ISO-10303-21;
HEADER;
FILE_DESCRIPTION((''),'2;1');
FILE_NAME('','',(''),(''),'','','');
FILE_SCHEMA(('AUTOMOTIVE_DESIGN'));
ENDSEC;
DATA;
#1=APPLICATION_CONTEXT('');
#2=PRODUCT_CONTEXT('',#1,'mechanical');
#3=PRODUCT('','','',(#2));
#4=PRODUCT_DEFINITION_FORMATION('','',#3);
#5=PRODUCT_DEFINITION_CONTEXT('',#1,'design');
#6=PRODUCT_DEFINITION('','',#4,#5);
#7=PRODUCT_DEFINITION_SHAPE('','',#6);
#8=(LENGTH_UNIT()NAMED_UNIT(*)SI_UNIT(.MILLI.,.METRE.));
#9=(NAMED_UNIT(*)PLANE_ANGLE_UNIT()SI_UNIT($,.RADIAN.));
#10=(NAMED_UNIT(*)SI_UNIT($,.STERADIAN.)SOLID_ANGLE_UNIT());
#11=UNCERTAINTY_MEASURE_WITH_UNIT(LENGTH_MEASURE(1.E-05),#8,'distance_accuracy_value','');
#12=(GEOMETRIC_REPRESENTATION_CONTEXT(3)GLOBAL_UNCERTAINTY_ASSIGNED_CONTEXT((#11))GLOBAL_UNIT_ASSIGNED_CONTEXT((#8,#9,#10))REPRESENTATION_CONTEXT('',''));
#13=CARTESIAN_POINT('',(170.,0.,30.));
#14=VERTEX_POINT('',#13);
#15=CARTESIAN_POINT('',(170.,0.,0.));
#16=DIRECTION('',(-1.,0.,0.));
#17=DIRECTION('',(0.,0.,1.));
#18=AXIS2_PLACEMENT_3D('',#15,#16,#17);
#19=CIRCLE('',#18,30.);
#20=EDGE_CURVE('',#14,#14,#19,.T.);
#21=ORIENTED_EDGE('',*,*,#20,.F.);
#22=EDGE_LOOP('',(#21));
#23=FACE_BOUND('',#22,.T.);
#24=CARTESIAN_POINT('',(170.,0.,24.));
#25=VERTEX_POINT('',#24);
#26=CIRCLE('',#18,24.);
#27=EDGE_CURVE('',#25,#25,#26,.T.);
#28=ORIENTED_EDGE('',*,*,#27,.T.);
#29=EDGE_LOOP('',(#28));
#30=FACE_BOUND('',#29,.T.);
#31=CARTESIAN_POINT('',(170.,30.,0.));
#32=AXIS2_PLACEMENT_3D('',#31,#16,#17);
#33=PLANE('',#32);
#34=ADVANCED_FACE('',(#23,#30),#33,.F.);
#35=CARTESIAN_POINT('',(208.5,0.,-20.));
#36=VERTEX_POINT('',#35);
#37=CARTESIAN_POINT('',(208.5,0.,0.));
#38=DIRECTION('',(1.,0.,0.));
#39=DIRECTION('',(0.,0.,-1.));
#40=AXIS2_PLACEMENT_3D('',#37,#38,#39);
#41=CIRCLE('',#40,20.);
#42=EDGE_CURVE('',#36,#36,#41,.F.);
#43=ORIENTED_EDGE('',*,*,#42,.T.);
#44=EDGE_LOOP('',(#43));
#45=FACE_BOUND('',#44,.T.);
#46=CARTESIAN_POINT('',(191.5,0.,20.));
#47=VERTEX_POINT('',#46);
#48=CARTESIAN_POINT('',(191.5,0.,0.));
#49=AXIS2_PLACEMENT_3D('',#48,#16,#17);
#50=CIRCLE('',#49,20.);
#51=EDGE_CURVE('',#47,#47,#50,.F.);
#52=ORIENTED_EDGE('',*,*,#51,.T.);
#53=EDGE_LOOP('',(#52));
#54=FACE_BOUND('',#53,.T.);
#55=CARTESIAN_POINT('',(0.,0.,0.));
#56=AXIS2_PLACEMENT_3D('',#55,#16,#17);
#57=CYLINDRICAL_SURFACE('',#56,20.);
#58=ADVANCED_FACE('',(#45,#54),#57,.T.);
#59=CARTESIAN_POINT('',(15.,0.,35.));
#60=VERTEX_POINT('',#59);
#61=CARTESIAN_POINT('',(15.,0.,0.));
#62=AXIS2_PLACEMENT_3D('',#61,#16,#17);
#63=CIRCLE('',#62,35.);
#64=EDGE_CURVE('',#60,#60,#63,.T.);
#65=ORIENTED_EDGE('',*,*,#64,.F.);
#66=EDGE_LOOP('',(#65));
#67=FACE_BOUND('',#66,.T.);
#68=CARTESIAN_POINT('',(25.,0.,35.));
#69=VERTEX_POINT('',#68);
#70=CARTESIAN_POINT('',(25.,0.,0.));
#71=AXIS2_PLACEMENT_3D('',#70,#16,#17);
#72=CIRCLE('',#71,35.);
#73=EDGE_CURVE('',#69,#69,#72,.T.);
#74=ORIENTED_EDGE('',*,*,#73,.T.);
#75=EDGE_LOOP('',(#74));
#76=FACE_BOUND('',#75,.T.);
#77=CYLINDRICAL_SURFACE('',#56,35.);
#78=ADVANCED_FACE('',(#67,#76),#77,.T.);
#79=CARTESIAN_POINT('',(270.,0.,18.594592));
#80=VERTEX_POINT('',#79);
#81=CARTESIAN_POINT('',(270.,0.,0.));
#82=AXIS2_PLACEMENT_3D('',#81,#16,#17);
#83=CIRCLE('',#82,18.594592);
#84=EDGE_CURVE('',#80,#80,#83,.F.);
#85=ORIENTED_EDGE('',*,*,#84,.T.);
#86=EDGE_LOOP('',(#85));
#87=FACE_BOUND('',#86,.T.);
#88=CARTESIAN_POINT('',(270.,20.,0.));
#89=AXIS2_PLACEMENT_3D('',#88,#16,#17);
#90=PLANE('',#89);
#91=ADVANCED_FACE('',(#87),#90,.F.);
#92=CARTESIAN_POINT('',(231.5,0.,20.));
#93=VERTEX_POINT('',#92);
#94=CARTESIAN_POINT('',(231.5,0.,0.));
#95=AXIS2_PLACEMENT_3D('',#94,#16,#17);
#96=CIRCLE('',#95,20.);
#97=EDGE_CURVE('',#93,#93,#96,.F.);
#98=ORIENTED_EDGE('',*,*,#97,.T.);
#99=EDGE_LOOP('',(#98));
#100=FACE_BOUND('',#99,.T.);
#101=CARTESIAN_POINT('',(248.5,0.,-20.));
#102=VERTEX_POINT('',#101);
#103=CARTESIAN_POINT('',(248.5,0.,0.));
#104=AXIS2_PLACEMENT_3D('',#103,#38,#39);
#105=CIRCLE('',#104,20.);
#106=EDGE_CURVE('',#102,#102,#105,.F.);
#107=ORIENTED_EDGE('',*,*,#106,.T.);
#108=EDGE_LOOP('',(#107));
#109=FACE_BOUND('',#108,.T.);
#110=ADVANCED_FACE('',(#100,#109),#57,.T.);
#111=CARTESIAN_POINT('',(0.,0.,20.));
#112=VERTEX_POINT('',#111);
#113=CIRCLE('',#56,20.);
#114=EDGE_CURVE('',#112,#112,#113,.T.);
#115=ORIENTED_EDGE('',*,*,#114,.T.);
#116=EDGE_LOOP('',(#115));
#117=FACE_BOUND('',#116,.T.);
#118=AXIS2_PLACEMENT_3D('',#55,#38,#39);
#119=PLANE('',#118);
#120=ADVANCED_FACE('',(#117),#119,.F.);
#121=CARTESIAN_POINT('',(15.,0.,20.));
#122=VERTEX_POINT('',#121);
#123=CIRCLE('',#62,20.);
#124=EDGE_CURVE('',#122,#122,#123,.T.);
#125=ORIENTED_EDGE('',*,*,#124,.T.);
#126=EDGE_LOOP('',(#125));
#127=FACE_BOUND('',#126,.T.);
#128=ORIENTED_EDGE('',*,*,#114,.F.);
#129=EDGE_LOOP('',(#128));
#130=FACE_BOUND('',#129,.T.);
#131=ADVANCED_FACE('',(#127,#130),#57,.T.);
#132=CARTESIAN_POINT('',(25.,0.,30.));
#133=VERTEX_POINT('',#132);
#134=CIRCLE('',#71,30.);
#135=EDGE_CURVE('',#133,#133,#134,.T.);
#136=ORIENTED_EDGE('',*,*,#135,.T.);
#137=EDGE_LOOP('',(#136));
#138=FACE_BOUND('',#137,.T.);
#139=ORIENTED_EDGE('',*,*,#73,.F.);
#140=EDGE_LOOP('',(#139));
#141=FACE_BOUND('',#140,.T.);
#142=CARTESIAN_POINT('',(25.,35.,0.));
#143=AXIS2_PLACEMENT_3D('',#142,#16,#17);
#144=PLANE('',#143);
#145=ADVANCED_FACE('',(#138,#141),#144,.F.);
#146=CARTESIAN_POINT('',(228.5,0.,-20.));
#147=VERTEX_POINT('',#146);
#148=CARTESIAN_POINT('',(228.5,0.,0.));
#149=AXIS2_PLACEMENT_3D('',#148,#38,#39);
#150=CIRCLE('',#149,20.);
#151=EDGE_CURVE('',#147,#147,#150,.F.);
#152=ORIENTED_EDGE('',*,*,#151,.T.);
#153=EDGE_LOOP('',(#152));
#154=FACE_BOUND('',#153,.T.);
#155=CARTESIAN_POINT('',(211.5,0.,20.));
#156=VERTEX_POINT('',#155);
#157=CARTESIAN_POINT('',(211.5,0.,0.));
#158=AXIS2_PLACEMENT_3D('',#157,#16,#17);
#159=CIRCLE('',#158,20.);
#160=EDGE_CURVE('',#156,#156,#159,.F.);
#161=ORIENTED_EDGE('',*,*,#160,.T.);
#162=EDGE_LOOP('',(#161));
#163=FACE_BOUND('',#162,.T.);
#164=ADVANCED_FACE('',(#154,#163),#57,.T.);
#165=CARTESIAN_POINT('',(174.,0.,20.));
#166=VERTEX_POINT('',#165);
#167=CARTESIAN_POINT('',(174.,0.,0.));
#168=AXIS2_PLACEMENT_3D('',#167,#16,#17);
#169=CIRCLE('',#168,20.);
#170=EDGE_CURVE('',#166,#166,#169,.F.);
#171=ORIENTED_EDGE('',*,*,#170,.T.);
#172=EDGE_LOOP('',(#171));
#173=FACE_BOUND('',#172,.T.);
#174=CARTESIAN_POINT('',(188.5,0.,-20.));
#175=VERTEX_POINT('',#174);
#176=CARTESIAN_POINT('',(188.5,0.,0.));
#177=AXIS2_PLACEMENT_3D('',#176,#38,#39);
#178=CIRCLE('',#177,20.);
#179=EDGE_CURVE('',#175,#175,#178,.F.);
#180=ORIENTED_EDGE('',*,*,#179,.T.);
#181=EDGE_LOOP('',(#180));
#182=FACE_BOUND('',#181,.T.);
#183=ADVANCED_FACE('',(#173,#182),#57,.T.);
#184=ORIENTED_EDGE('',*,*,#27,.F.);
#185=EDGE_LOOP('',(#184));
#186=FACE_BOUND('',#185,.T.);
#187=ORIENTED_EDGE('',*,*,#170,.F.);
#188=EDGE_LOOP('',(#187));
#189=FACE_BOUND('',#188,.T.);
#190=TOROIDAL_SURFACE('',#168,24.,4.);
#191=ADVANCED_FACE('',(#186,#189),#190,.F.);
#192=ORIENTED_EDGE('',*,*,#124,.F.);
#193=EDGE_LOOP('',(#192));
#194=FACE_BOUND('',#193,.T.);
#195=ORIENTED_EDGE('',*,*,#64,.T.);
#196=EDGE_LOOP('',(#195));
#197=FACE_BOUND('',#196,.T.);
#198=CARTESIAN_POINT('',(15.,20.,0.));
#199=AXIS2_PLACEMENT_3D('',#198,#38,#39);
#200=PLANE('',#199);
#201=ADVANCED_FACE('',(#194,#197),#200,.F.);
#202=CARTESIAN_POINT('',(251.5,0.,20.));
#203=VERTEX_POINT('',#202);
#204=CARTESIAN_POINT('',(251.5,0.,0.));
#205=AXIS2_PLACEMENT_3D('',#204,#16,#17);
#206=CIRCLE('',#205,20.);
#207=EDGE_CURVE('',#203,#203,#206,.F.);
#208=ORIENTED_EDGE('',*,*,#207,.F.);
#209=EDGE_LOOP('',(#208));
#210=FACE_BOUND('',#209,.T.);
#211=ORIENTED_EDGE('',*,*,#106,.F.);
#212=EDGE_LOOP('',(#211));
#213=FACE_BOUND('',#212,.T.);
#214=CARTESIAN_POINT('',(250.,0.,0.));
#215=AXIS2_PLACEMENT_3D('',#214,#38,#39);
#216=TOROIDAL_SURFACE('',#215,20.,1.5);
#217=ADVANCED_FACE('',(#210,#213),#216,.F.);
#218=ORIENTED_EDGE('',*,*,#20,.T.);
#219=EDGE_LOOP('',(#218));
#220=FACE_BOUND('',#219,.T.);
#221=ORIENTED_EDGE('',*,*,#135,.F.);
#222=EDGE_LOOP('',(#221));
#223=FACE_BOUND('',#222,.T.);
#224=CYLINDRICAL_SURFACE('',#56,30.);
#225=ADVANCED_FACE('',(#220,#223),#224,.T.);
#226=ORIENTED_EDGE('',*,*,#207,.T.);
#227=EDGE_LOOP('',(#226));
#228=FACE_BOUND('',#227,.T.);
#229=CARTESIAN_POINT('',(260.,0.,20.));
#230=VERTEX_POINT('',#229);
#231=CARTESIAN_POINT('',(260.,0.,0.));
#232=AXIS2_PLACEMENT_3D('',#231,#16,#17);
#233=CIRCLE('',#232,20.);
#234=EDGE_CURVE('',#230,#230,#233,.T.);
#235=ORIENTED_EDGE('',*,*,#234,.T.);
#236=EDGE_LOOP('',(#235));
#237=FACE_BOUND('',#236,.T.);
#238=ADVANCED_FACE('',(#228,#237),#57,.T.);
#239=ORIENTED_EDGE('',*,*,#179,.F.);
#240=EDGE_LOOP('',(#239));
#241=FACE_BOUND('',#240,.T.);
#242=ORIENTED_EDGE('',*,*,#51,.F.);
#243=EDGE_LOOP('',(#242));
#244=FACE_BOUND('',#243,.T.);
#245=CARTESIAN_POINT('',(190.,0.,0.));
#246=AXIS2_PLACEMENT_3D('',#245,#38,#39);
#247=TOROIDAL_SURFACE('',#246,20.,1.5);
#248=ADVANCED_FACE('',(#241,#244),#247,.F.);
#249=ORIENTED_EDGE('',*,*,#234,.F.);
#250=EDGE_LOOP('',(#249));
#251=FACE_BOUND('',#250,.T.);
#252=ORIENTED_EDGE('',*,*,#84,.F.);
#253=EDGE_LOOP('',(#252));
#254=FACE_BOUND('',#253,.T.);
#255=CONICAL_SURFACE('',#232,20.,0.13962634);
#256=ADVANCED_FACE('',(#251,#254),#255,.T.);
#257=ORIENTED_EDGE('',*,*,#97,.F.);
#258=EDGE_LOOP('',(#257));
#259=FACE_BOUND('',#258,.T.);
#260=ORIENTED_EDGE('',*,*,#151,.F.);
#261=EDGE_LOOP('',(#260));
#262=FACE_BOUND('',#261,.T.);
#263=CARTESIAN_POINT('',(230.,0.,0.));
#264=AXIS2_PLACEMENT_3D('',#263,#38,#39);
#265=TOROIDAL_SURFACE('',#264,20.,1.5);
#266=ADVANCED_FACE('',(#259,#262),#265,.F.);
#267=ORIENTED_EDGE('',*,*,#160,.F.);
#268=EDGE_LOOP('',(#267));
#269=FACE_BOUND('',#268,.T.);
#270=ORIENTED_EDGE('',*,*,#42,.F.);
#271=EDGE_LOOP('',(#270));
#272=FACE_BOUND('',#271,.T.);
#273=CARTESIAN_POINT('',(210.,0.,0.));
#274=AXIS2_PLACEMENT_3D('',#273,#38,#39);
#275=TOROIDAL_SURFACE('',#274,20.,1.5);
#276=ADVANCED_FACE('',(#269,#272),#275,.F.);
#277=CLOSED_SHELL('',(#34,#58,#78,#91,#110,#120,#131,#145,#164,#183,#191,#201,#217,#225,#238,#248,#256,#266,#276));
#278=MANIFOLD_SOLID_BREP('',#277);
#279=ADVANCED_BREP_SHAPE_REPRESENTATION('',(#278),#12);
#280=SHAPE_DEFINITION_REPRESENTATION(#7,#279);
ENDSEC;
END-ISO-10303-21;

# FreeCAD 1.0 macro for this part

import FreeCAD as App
import Part
import Sketcher

V = App.Vector
Q = App.Units.Quantity


def edges_at(feature, points):
    """Names of the edges that pass closest to the given points."""
    edges = feature.Shape.Edges
    near = lambda p: min(range(len(edges)), key=lambda i: edges[i].distToShape(Part.Vertex(*p))[0])
    return sorted({f"Edge{near(p) + 1}" for p in points})

doc = App.newDocument("Part")
body = doc.addObject("PartDesign::Body", "Body")

sketch1 = body.newObject("Sketcher::SketchObject", "Sketch")
sketch1.AttachmentSupport = (doc.getObject("XY_Plane"), [""])
sketch1.MapMode = "FlatFace"
sketch1.addGeometry(Part.LineSegment(V(0, 0, 0), V(270, 0, 0)), False)
sketch1.addGeometry(Part.LineSegment(V(270, 0, 0), V(270, 20, 0)), False)
sketch1.addGeometry(Part.LineSegment(V(270, 20, 0), V(170, 20, 0)), False)
sketch1.addGeometry(Part.LineSegment(V(170, 20, 0), V(170, 30, 0)), False)
sketch1.addGeometry(Part.LineSegment(V(170, 30, 0), V(25, 30, 0)), False)
sketch1.addGeometry(Part.LineSegment(V(25, 30, 0), V(25, 35, 0)), False)
sketch1.addGeometry(Part.LineSegment(V(25, 35, 0), V(15, 35, 0)), False)
sketch1.addGeometry(Part.LineSegment(V(15, 35, 0), V(15, 20, 0)), False)
sketch1.addGeometry(Part.LineSegment(V(15, 20, 0), V(0, 20, 0)), False)
sketch1.addGeometry(Part.LineSegment(V(0, 20, 0), V(0, 0, 0)), False)
sketch1.addConstraint(Sketcher.Constraint("Coincident", 0, 2, 1, 1))
sketch1.addConstraint(Sketcher.Constraint("Coincident", 1, 2, 2, 1))
sketch1.addConstraint(Sketcher.Constraint("Coincident", 2, 2, 3, 1))
sketch1.addConstraint(Sketcher.Constraint("Coincident", 3, 2, 4, 1))
sketch1.addConstraint(Sketcher.Constraint("Coincident", 4, 2, 5, 1))
sketch1.addConstraint(Sketcher.Constraint("Coincident", 5, 2, 6, 1))
sketch1.addConstraint(Sketcher.Constraint("Coincident", 6, 2, 7, 1))
sketch1.addConstraint(Sketcher.Constraint("Coincident", 7, 2, 8, 1))
sketch1.addConstraint(Sketcher.Constraint("Coincident", 8, 2, 9, 1))
sketch1.addConstraint(Sketcher.Constraint("Coincident", 9, 2, 0, 1))
sketch1.addConstraint(Sketcher.Constraint("Horizontal", 0))
sketch1.addConstraint(Sketcher.Constraint("Vertical", 1))
sketch1.addConstraint(Sketcher.Constraint("Horizontal", 2))
sketch1.addConstraint(Sketcher.Constraint("Vertical", 3))
sketch1.addConstraint(Sketcher.Constraint("Horizontal", 4))
sketch1.addConstraint(Sketcher.Constraint("Vertical", 5))
sketch1.addConstraint(Sketcher.Constraint("Horizontal", 6))
sketch1.addConstraint(Sketcher.Constraint("Vertical", 7))
sketch1.addConstraint(Sketcher.Constraint("Horizontal", 8))
sketch1.addConstraint(Sketcher.Constraint("Vertical", 9))
sketch1.addConstraint(Sketcher.Constraint("Coincident", 9, 2, -1, 1))
sketch1.addConstraint(Sketcher.Constraint("Horizontal", 2, 2, 7, 2))
sketch1.addConstraint(Sketcher.Constraint("Equal", 6, 3))
sketch1.addConstraint(Sketcher.Constraint("Equal", 8, 7))
sketch1.addConstraint(Sketcher.Constraint("DistanceX", 0, 1, 0, 2, Q("270 mm")))
sketch1.addConstraint(Sketcher.Constraint("DistanceX", 2, 2, 2, 1, Q("100 mm")))
sketch1.addConstraint(Sketcher.Constraint("DistanceX", 4, 2, 4, 1, Q("145 mm")))
sketch1.addConstraint(Sketcher.Constraint("DistanceX", 6, 2, 6, 1, Q("10 mm")))
sketch1.addConstraint(Sketcher.Constraint("DistanceY", 1, 1, 1, 2, Q("20 mm")))
revolution = body.newObject("PartDesign::Revolution", "Revolution")
revolution.Profile = sketch1
revolution.ReferenceAxis = (sketch1, ["H_Axis"])
revolution.Angle = 360
doc.recompute()

fillet = body.newObject("PartDesign::Fillet", "Fillet")
fillet.Base = (revolution, edges_at(revolution, [(170, 0, -20)]))
fillet.Radius = 4
doc.recompute()

chamfer = body.newObject("PartDesign::Chamfer", "Chamfer")
chamfer.Base = (fillet, edges_at(fillet, [(270, 0, -20)]))
chamfer.ChamferType = "Two distances"
chamfer.Size = 10
chamfer.Size2 = 1.405408

sketch2 = body.newObject("Sketcher::SketchObject", "Sketch001")
sketch2.AttachmentSupport = (doc.getObject("XY_Plane"), [""])
sketch2.MapMode = "FlatFace"
sketch2.addGeometry(Part.Circle(V(190, 20, 0), V(0, 0, 1), 1.5), False)
sketch2.addGeometry(Part.Circle(V(210, 20, 0), V(0, 0, 1), 1.5), False)
sketch2.addGeometry(Part.Circle(V(230, 20, 0), V(0, 0, 1), 1.5), False)
sketch2.addGeometry(Part.Circle(V(250, 20, 0), V(0, 0, 1), 1.5), False)
sketch2.addConstraint(Sketcher.Constraint("Equal", 0, 1))
sketch2.addConstraint(Sketcher.Constraint("Equal", 1, 2))
sketch2.addConstraint(Sketcher.Constraint("Equal", 2, 3))
sketch2.addConstraint(Sketcher.Constraint("Horizontal", 0, 3, 1, 3))
sketch2.addConstraint(Sketcher.Constraint("Horizontal", 1, 3, 2, 3))
sketch2.addConstraint(Sketcher.Constraint("Horizontal", 2, 3, 3, 3))
sketch2.addConstraint(Sketcher.Constraint("Diameter", 0, Q("3 mm")))
sketch2.addConstraint(Sketcher.Constraint("DistanceX", -1, 1, 0, 3, Q("190 mm")))
sketch2.addConstraint(Sketcher.Constraint("DistanceY", -1, 1, 0, 3, Q("20 mm")))
sketch2.addConstraint(Sketcher.Constraint("DistanceX", -1, 1, 1, 3, Q("210 mm")))
sketch2.addConstraint(Sketcher.Constraint("DistanceX", -1, 1, 2, 3, Q("230 mm")))
sketch2.addConstraint(Sketcher.Constraint("DistanceX", -1, 1, 3, 3, Q("250 mm")))
groove = body.newObject("PartDesign::Groove", "Groove")
groove.Profile = sketch2
groove.ReferenceAxis = (sketch2, ["H_Axis"])
groove.Angle = 360

doc.recompute()
